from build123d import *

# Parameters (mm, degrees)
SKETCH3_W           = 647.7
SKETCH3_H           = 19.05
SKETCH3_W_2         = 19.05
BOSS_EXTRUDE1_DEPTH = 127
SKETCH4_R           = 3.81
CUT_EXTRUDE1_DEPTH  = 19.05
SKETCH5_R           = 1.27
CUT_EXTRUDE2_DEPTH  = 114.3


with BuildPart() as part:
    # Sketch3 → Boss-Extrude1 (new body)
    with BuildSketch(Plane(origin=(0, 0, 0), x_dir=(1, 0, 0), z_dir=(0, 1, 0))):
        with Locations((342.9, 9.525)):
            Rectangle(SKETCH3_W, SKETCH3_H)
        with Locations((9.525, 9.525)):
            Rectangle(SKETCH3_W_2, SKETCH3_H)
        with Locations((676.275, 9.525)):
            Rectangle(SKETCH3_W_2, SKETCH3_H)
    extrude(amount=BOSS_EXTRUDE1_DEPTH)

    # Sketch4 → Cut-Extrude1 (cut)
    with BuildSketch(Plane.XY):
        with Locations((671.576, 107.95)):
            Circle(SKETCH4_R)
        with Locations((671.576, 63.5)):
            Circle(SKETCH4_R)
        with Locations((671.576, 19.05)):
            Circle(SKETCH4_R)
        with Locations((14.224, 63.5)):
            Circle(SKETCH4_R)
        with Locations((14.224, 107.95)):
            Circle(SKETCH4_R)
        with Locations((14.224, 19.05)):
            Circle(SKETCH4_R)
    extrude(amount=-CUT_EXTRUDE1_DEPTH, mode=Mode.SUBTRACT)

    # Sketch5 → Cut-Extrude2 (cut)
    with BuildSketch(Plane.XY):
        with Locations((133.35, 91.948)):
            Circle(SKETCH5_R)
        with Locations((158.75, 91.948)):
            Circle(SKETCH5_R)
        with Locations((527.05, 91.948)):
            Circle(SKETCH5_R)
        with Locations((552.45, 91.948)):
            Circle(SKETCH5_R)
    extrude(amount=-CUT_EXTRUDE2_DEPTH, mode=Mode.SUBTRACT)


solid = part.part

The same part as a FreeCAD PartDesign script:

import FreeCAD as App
import Part
import Sketcher

V = App.Vector
Q = App.Units.Quantity


def add_polygon(sketch, points):
    """Adds a closed chain of lines whose ends are joined by coincident constraints."""
    first, n = sketch.GeometryCount, len(points)
    for a, b in zip(points, points[1:] + points[:1]):
        sketch.addGeometry(Part.LineSegment(App.Vector(*a, 0), App.Vector(*b, 0)), False)
    for i in range(n):
        sketch.addConstraint(Sketcher.Constraint("Coincident", first + i, 2, first + (i + 1) % n, 1))

doc = App.newDocument("Part")
body = doc.addObject("PartDesign::Body", "Body")

sketch1 = body.newObject("Sketcher::SketchObject", "Sketch")
sketch1.AttachmentSupport = (doc.getObject("XZ_Plane"), [""])
sketch1.MapMode = "FlatFace"
add_polygon(sketch1, [(0, -19), (0, 0), (686, 0), (686, -19)])
sketch1.addConstraint([
    Sketcher.Constraint("Vertical", 0),
    Sketcher.Constraint("Horizontal", 1),
    Sketcher.Constraint("Vertical", 2),
    Sketcher.Constraint("Horizontal", 3),
    Sketcher.Constraint("Coincident", 0, 2, -1, 1),
    Sketcher.Constraint("DistanceX", 1, 1, 1, 2, Q("27 in")),
    Sketcher.Constraint("DistanceY", 0, 1, 0, 2, Q("0.75 in")),
])
pad1 = body.newObject("PartDesign::Pad", "Pad")
pad1.Profile = sketch1
pad1.Length = Q("5 in")
pad1.Reversed = True

sketch2 = body.newObject("Sketcher::SketchObject", "Sketch001")
sketch2.AttachmentSupport = (doc.getObject("XY_Plane"), [""])
sketch2.MapMode = "FlatFace"
sketch2.addGeometry([
    Part.Circle(V(671.6, 108, 0), V(0, 0, 1), 3.8),
    Part.Circle(V(671.6, 63.5, 0), V(0, 0, 1), 3.8),
    Part.Circle(V(671.6, 19.1, 0), V(0, 0, 1), 3.8),
    Part.Circle(V(14.2, 63.5, 0), V(0, 0, 1), 3.8),
    Part.Circle(V(14.2, 108, 0), V(0, 0, 1), 3.8),
    Part.Circle(V(14.2, 19.1, 0), V(0, 0, 1), 3.8),
], False)
sketch2.addConstraint([
    Sketcher.Constraint("Equal", 0, 1),
    Sketcher.Constraint("Equal", 1, 2),
    Sketcher.Constraint("Equal", 2, 3),
    Sketcher.Constraint("Equal", 3, 4),
    Sketcher.Constraint("Equal", 4, 5),
    Sketcher.Constraint("Horizontal", 1, 3, 3, 3),
    Sketcher.Constraint("Horizontal", 0, 3, 4, 3),
    Sketcher.Constraint("Horizontal", 2, 3, 5, 3),
    Sketcher.Constraint("Vertical", 0, 3, 1, 3),
    Sketcher.Constraint("Vertical", 1, 3, 2, 3),
    Sketcher.Constraint("Vertical", 3, 3, 4, 3),
    Sketcher.Constraint("Vertical", 4, 3, 5, 3),
    Sketcher.Constraint("Diameter", 0, Q("0.3 in")),
    Sketcher.Constraint("DistanceY", -1, 1, 1, 3, Q("2.5 in")),
    Sketcher.Constraint("DistanceY", 2, 3, 0, 3, Q("3.5 in")),
    Sketcher.Constraint("DistanceX", -1, 1, 0, 3, Q("26.44 in")),
    Sketcher.Constraint("DistanceY", -1, 1, 0, 3, Q("4.25 in")),
    Sketcher.Constraint("DistanceX", -1, 1, 3, 3, Q("0.56 in")),
])
pocket1 = body.newObject("PartDesign::Pocket", "Pocket")
pocket1.Profile = sketch2
pocket1.Length = Q("0.75 in")

sketch3 = body.newObject("Sketcher::SketchObject", "Sketch002")
sketch3.AttachmentSupport = (doc.getObject("XY_Plane"), [""])
sketch3.MapMode = "FlatFace"
sketch3.addGeometry([
    Part.Circle(V(133.3, 91.9, 0), V(0, 0, 1), 1.3),
    Part.Circle(V(158.8, 91.9, 0), V(0, 0, 1), 1.3),
    Part.Circle(V(527, 91.9, 0), V(0, 0, 1), 1.3),
    Part.Circle(V(552.5, 91.9, 0), V(0, 0, 1), 1.3),
], False)
sketch3.addConstraint([
    Sketcher.Constraint("Equal", 0, 1),
    Sketcher.Constraint("Equal", 1, 2),
    Sketcher.Constraint("Equal", 2, 3),
    Sketcher.Constraint("Horizontal", 0, 3, 1, 3),
    Sketcher.Constraint("Horizontal", 1, 3, 2, 3),
    Sketcher.Constraint("Horizontal", 2, 3, 3, 3),
    Sketcher.Constraint("Diameter", 0, Q("0.1 in")),
    Sketcher.Constraint("DistanceX", 0, 3, 1, 3, Q("1 in")),
    Sketcher.Constraint("DistanceX", 2, 3, 3, 3, Q("1 in")),
    Sketcher.Constraint("DistanceX", 1, 3, 2, 3, Q("14.5 in")),
    Sketcher.Constraint("DistanceX", -1, 1, 0, 3, Q("5.25 in")),
    Sketcher.Constraint("DistanceY", -1, 1, 0, 3, Q("3.62 in")),
])
pocket2 = body.newObject("PartDesign::Pocket", "Pocket001")
pocket2.Profile = sketch3
pocket2.Length = Q("4.5 in")

doc.recompute()
